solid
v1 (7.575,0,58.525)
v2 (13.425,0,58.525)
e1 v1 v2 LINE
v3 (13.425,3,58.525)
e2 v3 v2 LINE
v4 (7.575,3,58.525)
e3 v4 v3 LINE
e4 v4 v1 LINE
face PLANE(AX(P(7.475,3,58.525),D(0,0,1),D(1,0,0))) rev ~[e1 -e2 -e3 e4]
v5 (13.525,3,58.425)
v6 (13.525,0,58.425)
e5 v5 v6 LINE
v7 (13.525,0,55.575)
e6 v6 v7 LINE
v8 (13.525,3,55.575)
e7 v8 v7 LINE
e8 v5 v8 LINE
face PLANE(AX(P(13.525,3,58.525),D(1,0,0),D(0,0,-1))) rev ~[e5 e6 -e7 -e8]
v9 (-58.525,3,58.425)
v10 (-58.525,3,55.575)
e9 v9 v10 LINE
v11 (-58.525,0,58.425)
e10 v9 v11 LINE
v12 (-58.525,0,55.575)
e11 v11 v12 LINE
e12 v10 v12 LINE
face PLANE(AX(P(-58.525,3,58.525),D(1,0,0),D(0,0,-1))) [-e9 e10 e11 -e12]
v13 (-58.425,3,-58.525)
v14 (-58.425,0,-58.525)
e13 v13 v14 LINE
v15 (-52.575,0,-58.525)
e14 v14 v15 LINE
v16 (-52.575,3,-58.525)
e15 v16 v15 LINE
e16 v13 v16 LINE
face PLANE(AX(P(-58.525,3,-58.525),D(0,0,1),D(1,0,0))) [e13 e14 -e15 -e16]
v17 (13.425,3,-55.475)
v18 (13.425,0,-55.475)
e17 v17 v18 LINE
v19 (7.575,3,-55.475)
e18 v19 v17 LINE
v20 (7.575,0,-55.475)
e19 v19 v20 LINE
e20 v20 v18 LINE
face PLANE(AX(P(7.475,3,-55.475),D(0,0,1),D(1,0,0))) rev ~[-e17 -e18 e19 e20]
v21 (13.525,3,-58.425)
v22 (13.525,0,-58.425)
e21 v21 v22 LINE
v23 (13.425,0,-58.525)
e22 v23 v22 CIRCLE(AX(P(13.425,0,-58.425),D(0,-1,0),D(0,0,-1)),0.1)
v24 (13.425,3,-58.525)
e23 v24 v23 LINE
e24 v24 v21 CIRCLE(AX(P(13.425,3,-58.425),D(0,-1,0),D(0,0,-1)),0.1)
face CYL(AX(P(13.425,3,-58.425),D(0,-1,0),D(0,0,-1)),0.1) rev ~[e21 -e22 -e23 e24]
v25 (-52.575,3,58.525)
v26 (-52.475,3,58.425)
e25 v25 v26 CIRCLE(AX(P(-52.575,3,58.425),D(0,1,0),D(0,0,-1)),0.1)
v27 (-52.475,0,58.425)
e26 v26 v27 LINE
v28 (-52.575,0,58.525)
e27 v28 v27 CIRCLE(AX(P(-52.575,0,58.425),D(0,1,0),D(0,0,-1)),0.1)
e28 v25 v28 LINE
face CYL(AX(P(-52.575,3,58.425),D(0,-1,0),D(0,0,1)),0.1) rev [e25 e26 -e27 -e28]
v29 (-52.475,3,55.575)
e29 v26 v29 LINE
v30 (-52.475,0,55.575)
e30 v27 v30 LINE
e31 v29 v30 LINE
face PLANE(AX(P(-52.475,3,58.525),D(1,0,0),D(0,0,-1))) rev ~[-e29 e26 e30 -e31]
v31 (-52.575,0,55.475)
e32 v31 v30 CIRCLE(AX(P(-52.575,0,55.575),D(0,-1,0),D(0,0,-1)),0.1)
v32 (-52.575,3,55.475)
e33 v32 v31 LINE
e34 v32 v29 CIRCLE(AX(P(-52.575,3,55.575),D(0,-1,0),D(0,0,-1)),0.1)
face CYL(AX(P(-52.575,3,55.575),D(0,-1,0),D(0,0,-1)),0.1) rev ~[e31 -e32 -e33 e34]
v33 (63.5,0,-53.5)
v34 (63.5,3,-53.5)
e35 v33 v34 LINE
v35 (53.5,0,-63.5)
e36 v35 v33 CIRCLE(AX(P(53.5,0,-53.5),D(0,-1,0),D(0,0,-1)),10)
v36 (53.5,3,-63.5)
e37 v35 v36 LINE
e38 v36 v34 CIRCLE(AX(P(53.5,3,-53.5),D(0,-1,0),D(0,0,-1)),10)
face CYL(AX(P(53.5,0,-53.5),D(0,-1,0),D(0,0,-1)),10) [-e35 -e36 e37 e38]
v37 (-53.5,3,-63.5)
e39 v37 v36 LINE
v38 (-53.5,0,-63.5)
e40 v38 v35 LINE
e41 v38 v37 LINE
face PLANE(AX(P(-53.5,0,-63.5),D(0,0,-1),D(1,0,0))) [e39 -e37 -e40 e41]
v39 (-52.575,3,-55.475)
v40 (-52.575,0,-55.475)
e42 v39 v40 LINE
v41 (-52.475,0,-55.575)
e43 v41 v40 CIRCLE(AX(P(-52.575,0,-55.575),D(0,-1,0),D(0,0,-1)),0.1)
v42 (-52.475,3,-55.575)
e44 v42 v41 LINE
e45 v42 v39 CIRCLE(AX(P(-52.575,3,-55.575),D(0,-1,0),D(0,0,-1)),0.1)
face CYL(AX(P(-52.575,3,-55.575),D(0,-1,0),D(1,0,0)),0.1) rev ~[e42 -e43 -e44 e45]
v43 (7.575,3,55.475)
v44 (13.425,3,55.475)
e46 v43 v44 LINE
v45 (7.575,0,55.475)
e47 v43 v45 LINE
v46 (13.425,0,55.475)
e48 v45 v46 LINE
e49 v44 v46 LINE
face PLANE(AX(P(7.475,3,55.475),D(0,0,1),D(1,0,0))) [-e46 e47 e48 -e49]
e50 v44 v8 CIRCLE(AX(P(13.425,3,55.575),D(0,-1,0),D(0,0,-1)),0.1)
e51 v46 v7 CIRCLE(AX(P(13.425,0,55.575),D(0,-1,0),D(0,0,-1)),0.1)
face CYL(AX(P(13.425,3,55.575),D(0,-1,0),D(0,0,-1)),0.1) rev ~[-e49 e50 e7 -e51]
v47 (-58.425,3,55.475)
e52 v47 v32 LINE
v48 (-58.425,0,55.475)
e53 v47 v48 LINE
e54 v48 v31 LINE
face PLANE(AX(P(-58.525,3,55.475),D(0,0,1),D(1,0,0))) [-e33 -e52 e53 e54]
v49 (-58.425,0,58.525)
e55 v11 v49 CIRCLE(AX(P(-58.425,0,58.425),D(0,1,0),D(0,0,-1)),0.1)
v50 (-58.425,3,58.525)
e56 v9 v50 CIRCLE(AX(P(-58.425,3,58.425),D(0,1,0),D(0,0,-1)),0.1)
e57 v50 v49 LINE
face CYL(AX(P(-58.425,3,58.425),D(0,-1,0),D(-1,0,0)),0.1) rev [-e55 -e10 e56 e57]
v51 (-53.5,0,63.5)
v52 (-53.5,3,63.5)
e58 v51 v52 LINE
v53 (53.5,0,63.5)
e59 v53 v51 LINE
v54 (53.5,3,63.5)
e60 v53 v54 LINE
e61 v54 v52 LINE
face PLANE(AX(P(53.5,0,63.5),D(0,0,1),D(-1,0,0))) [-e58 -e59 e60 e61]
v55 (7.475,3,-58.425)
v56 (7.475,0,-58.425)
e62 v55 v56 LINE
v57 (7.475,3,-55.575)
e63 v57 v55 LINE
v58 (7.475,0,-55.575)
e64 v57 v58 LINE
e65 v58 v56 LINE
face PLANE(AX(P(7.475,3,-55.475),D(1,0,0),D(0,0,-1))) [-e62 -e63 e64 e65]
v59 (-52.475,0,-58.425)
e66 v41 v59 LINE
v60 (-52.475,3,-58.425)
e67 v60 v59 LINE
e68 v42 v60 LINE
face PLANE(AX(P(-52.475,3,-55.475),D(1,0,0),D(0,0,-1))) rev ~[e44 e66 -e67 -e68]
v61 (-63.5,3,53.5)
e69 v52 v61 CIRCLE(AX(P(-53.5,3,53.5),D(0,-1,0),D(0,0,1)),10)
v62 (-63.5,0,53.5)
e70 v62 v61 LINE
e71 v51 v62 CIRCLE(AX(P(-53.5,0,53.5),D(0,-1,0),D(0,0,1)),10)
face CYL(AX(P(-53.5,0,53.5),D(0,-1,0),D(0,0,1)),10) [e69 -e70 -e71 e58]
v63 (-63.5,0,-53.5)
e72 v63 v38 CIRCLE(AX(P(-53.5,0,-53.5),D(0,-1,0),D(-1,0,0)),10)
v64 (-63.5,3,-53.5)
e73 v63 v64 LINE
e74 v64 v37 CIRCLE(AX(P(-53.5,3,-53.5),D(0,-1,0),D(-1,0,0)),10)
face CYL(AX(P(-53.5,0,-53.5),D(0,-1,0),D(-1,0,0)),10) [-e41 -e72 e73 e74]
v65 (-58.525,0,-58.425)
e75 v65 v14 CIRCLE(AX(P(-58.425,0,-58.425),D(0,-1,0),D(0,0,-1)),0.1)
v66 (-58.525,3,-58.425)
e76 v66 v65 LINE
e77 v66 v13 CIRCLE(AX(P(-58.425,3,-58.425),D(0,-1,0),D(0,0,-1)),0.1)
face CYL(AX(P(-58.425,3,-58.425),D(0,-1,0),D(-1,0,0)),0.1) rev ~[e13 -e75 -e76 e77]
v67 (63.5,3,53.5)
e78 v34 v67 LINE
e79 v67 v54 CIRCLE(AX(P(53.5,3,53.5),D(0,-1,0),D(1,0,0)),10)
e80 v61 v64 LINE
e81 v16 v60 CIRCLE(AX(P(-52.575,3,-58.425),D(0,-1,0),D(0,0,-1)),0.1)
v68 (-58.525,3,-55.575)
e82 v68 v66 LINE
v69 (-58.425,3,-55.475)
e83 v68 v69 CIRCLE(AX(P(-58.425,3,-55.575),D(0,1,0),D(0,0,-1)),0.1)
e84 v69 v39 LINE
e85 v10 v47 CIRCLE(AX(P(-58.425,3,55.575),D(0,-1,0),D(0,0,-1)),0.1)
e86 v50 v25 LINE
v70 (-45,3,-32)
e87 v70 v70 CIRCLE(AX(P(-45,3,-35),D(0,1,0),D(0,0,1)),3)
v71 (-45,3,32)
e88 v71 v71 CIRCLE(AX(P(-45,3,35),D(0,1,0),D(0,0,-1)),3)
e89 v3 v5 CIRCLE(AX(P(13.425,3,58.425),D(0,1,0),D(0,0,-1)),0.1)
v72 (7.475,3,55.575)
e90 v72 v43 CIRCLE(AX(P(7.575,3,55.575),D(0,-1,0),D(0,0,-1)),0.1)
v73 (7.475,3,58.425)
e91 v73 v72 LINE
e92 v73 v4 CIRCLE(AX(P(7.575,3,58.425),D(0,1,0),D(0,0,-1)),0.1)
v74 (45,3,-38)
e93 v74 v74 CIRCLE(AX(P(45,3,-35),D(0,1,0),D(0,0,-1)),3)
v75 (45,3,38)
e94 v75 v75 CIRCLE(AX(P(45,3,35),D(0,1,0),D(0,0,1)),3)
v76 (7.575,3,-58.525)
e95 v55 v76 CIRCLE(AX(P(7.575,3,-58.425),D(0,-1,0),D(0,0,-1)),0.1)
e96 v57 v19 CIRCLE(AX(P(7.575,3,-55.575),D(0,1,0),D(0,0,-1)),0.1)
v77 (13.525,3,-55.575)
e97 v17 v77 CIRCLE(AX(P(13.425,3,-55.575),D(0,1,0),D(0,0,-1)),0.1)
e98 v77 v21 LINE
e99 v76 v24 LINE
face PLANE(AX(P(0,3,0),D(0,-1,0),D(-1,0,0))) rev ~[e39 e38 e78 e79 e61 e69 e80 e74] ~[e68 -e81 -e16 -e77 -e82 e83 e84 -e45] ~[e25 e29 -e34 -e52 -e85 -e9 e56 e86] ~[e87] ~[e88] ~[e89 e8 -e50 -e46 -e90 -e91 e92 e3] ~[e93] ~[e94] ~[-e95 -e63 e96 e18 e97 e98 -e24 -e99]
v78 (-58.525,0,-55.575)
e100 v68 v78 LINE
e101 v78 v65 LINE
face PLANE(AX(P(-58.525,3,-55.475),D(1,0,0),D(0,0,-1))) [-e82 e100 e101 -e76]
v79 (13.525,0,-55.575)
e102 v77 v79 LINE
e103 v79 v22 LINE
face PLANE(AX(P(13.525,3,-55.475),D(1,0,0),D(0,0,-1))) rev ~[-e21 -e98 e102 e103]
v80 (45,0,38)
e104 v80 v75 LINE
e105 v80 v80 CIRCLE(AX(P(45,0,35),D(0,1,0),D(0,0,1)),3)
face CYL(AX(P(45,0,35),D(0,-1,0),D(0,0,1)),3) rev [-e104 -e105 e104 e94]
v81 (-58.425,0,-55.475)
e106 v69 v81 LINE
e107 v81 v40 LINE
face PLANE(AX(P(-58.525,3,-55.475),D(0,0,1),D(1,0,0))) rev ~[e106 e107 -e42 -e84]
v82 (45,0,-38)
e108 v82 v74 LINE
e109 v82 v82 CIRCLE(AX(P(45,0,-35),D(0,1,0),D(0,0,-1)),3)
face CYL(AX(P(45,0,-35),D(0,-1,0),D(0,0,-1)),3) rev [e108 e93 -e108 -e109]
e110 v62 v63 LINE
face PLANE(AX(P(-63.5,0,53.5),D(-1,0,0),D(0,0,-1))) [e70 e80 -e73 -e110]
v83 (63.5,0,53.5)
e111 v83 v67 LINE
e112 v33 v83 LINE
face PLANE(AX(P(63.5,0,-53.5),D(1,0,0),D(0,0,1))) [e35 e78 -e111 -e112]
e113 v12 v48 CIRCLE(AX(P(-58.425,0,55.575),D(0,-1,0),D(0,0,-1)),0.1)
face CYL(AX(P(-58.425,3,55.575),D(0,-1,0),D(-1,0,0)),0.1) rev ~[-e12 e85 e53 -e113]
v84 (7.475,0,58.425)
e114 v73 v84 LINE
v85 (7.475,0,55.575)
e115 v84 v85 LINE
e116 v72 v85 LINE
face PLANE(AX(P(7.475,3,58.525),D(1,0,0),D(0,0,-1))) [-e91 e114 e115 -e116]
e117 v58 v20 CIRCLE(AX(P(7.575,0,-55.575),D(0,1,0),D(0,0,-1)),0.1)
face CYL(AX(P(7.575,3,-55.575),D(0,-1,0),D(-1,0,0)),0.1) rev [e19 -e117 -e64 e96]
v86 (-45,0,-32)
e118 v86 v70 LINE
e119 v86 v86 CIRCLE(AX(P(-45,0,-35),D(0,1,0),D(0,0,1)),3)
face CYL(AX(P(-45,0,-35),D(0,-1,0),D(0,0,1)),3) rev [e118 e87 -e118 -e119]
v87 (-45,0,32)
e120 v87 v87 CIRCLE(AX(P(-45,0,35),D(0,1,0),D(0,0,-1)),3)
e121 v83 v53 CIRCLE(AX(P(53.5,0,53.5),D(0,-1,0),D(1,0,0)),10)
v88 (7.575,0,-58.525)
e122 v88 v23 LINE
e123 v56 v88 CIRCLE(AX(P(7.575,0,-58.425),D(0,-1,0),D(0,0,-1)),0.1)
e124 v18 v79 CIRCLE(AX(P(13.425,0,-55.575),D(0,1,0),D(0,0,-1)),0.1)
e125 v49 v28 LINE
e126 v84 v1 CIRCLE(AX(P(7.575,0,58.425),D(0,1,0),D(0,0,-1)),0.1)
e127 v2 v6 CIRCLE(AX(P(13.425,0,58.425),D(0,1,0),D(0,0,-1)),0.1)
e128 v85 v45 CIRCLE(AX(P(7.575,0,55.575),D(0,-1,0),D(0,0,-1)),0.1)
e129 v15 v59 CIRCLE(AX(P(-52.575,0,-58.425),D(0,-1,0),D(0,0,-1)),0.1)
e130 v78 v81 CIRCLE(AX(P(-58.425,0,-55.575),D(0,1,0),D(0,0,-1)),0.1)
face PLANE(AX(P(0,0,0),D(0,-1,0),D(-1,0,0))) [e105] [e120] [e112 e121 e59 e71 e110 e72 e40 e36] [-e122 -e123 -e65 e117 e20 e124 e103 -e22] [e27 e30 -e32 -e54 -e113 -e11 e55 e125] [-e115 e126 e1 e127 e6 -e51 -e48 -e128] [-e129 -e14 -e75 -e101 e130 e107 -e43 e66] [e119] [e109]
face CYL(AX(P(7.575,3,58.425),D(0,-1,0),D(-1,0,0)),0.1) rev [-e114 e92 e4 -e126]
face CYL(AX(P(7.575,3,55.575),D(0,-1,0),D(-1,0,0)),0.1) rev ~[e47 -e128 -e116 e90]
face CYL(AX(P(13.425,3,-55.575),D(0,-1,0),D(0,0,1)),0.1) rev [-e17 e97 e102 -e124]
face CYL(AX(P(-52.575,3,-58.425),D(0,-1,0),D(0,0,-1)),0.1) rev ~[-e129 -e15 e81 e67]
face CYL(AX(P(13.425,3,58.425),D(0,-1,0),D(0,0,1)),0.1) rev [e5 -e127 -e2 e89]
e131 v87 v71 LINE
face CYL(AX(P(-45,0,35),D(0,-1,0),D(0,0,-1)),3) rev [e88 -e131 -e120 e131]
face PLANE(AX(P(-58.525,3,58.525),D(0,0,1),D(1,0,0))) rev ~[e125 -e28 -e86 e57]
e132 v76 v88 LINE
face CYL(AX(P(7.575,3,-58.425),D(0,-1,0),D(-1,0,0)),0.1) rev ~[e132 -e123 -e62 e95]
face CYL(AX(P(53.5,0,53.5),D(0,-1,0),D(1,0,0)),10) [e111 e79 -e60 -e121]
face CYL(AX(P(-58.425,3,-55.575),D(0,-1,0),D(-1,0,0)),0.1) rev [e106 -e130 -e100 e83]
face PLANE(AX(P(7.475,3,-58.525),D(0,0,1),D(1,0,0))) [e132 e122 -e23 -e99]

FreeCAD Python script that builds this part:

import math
import FreeCAD as App
import Part
import Sketcher


def edges_at(feature, points):
    """Names of the edges that pass closest to the given points."""
    edges = feature.Shape.Edges
    near = lambda p: min(range(len(edges)), key=lambda i: edges[i].distToShape(Part.Vertex(*p))[0])
    return sorted({f"Edge{near(p) + 1}" for p in points})

doc = App.newDocument("Part")
body = doc.addObject("PartDesign::Body", "Body")

# Sketch on XZ plane
sketch1 = doc.addObject("Sketcher::SketchObject", "Sketch")
body.addObject(sketch1)
sketch1.AttachmentSupport = (doc.XZ_Plane, [""])
sketch1.MapMode = "FlatFace"
sketch1.addGeometry([
    Part.LineSegment(App.Vector(53.5, -63.5, 0), App.Vector(-53.5, -63.5, 0)),  # 0
    Part.ArcOfCircle(Part.Circle(App.Vector(-53.5, -53.5, 0), App.Vector(0, 0, 1), 10), math.radians(180), math.radians(270)),  # 1
    Part.LineSegment(App.Vector(-63.5, -53.5, 0), App.Vector(-63.5, 53.5, 0)),  # 2
    Part.ArcOfCircle(Part.Circle(App.Vector(-53.5, 53.5, 0), App.Vector(0, 0, 1), 10), math.radians(90), math.radians(180)),  # 3
    Part.LineSegment(App.Vector(-53.5, 63.5, 0), App.Vector(53.5, 63.5, 0)),  # 4
    Part.ArcOfCircle(Part.Circle(App.Vector(53.5, 53.5, 0), App.Vector(0, 0, 1), 10), math.radians(0), math.radians(90)),  # 5
    Part.LineSegment(App.Vector(63.5, 53.5, 0), App.Vector(63.5, -53.5, 0)),  # 6
    Part.ArcOfCircle(Part.Circle(App.Vector(53.5, -53.5, 0), App.Vector(0, 0, 1), 10), math.radians(-90), math.radians(0)),  # 7
    Part.Circle(App.Vector(45, 35, 0), App.Vector(0, 0, 1), 3),  # 8
    Part.Circle(App.Vector(-45, 35, 0), App.Vector(0, 0, 1), 3),  # 9
    Part.Circle(App.Vector(45, -35, 0), App.Vector(0, 0, 1), 3),  # 10
    Part.Circle(App.Vector(-45, -35, 0), App.Vector(0, 0, 1), 3),  # 11
], False)
sketch1.addConstraint([
    Sketcher.Constraint("Tangent", 0, 2, 1, 2),
    Sketcher.Constraint("Tangent", 1, 1, 2, 1),
    Sketcher.Constraint("Tangent", 2, 2, 3, 2),
    Sketcher.Constraint("Tangent", 3, 1, 4, 1),
    Sketcher.Constraint("Tangent", 4, 2, 5, 2),
    Sketcher.Constraint("Tangent", 5, 1, 6, 1),
    Sketcher.Constraint("Tangent", 6, 2, 7, 2),
    Sketcher.Constraint("Tangent", 7, 1, 0, 1),
    Sketcher.Constraint("Horizontal", 0),
    Sketcher.Constraint("Vertical", 2),
    Sketcher.Constraint("Horizontal", 4),
    Sketcher.Constraint("Vertical", 6),
    Sketcher.Constraint("Equal", 1, 3),
    Sketcher.Constraint("Equal", 3, 5),
    Sketcher.Constraint("Equal", 5, 7),
    Sketcher.Constraint("Equal", 8, 9),
    Sketcher.Constraint("Equal", 9, 10),
    Sketcher.Constraint("Equal", 10, 11),
    Sketcher.Constraint("Symmetric", 1, 3, 5, 3, -1, 1),
    Sketcher.Constraint("Symmetric", 9, 3, 10, 3, -1, 1),
    Sketcher.Constraint("Symmetric", 8, 3, 11, 3, -1, 1),
    Sketcher.Constraint("Symmetric", 8, 3, 9, 3, -2),
    Sketcher.Constraint("Equal", 4, 2),
    Sketcher.Constraint("Diameter", 8, 6.0),
    Sketcher.Constraint("Radius", 1, 10.0),
    Sketcher.Constraint("DistanceX", 0, 2, 0, 1, 107.0),
    Sketcher.Constraint("DistanceX", -1, 1, 8, 3, 45.0),
    Sketcher.Constraint("DistanceY", -1, 1, 8, 3, 35.0),
])
pad1 = doc.addObject("PartDesign::Pad", "Pad")
body.addObject(pad1)
pad1.Profile = sketch1
pad1.Length = 3
pad1.Reversed = True

# Sketch on XZ plane
sketch2 = doc.addObject("Sketcher::SketchObject", "Sketch001")
body.addObject(sketch2)
sketch2.AttachmentSupport = (doc.XZ_Plane, [""])
sketch2.MapMode = "FlatFace"
sketch2.AttachmentOffset = App.Placement(App.Vector(0, 0, -3), App.Rotation())
sketch2.addGeometry([
    Part.LineSegment(App.Vector(-58.5, 55.5, 0), App.Vector(-58.5, 58.5, 0)),
    Part.LineSegment(App.Vector(-58.5, 58.5, 0), App.Vector(-52.5, 58.5, 0)),
    Part.LineSegment(App.Vector(-52.5, 58.5, 0), App.Vector(-52.5, 55.5, 0)),
    Part.LineSegment(App.Vector(-52.5, 55.5, 0), App.Vector(-58.5, 55.5, 0)),
], False)
sketch2.addConstraint([
    Sketcher.Constraint("Coincident", 0, 2, 1, 1),
    Sketcher.Constraint("Coincident", 1, 2, 2, 1),
    Sketcher.Constraint("Coincident", 2, 2, 3, 1),
    Sketcher.Constraint("Coincident", 3, 2, 0, 1),
    Sketcher.Constraint("Vertical", 0),
    Sketcher.Constraint("Horizontal", 1),
    Sketcher.Constraint("Vertical", 2),
    Sketcher.Constraint("Horizontal", 3),
    Sketcher.Constraint("DistanceX", 1, 1, 1, 2, 6.05),
    Sketcher.Constraint("DistanceY", 0, 1, 0, 2, 3.05),
    Sketcher.Constraint("DistanceX", 0, 2, -1, 1, 58.525),
    Sketcher.Constraint("DistanceY", -1, 1, 0, 2, 58.525),
])
pocket1 = doc.addObject("PartDesign::Pocket", "Pocket")
body.addObject(pocket1)
pocket1.Profile = sketch2
pocket1.Type = "UpToFirst"
pocket1.Reversed = True

# Sketch on XZ plane
sketch3 = doc.addObject("Sketcher::SketchObject", "Sketch002")
body.addObject(sketch3)
sketch3.AttachmentSupport = (doc.XZ_Plane, [""])
sketch3.MapMode = "FlatFace"
sketch3.AttachmentOffset = App.Placement(App.Vector(0, 0, -3), App.Rotation())
sketch3.addGeometry([
    Part.LineSegment(App.Vector(7.5, 55.5, 0), App.Vector(7.5, 58.5, 0)),
    Part.LineSegment(App.Vector(7.5, 58.5, 0), App.Vector(13.5, 58.5, 0)),
    Part.LineSegment(App.Vector(13.5, 58.5, 0), App.Vector(13.5, 55.5, 0)),
    Part.LineSegment(App.Vector(13.5, 55.5, 0), App.Vector(7.5, 55.5, 0)),
], False)
sketch3.addConstraint([
    Sketcher.Constraint("Coincident", 0, 2, 1, 1),
    Sketcher.Constraint("Coincident", 1, 2, 2, 1),
    Sketcher.Constraint("Coincident", 2, 2, 3, 1),
    Sketcher.Constraint("Coincident", 3, 2, 0, 1),
    Sketcher.Constraint("Vertical", 0),
    Sketcher.Constraint("Horizontal", 1),
    Sketcher.Constraint("Vertical", 2),
    Sketcher.Constraint("Horizontal", 3),
    Sketcher.Constraint("DistanceX", 1, 1, 1, 2, 6.05),
    Sketcher.Constraint("DistanceY", 0, 1, 0, 2, 3.05),
    Sketcher.Constraint("DistanceX", -1, 1, 0, 2, 7.475),
    Sketcher.Constraint("DistanceY", -1, 1, 0, 2, 58.525),
])
pocket2 = doc.addObject("PartDesign::Pocket", "Pocket001")
body.addObject(pocket2)
pocket2.Profile = sketch3
pocket2.Type = "UpToFirst"
pocket2.Reversed = True

# Sketch on XZ plane
sketch4 = doc.addObject("Sketcher::SketchObject", "Sketch003")
body.addObject(sketch4)
sketch4.AttachmentSupport = (doc.XZ_Plane, [""])
sketch4.MapMode = "FlatFace"
sketch4.AttachmentOffset = App.Placement(App.Vector(0, 0, -3), App.Rotation())
sketch4.addGeometry([
    Part.LineSegment(App.Vector(7.5, -58.5, 0), App.Vector(7.5, -55.5, 0)),
    Part.LineSegment(App.Vector(7.5, -55.5, 0), App.Vector(13.5, -55.5, 0)),
    Part.LineSegment(App.Vector(13.5, -55.5, 0), App.Vector(13.5, -58.5, 0)),
    Part.LineSegment(App.Vector(13.5, -58.5, 0), App.Vector(7.5, -58.5, 0)),
], False)
sketch4.addConstraint([
    Sketcher.Constraint("Coincident", 0, 2, 1, 1),
    Sketcher.Constraint("Coincident", 1, 2, 2, 1),
    Sketcher.Constraint("Coincident", 2, 2, 3, 1),
    Sketcher.Constraint("Coincident", 3, 2, 0, 1),
    Sketcher.Constraint("Vertical", 0),
    Sketcher.Constraint("Horizontal", 1),
    Sketcher.Constraint("Vertical", 2),
    Sketcher.Constraint("Horizontal", 3),
    Sketcher.Constraint("DistanceX", 1, 1, 1, 2, 6.05),
    Sketcher.Constraint("DistanceY", 0, 1, 0, 2, 3.05),
    Sketcher.Constraint("DistanceX", -1, 1, 0, 2, 7.475),
    Sketcher.Constraint("DistanceY", 0, 2, -1, 1, 55.475),
])
pocket3 = doc.addObject("PartDesign::Pocket", "Pocket002")
body.addObject(pocket3)
pocket3.Profile = sketch4
pocket3.Type = "UpToFirst"
pocket3.Reversed = True

# Sketch on XZ plane
sketch5 = doc.addObject("Sketcher::SketchObject", "Sketch004")
body.addObject(sketch5)
sketch5.AttachmentSupport = (doc.XZ_Plane, [""])
sketch5.MapMode = "FlatFace"
sketch5.AttachmentOffset = App.Placement(App.Vector(0, 0, -3), App.Rotation())
sketch5.addGeometry([
    Part.LineSegment(App.Vector(-58.5, -58.5, 0), App.Vector(-58.5, -55.5, 0)),
    Part.LineSegment(App.Vector(-58.5, -55.5, 0), App.Vector(-52.5, -55.5, 0)),
    Part.LineSegment(App.Vector(-52.5, -55.5, 0), App.Vector(-52.5, -58.5, 0)),
    Part.LineSegment(App.Vector(-52.5, -58.5, 0), App.Vector(-58.5, -58.5, 0)),
], False)
sketch5.addConstraint([
    Sketcher.Constraint("Coincident", 0, 2, 1, 1),
    Sketcher.Constraint("Coincident", 1, 2, 2, 1),
    Sketcher.Constraint("Coincident", 2, 2, 3, 1),
    Sketcher.Constraint("Coincident", 3, 2, 0, 1),
    Sketcher.Constraint("Vertical", 0),
    Sketcher.Constraint("Horizontal", 1),
    Sketcher.Constraint("Vertical", 2),
    Sketcher.Constraint("Horizontal", 3),
    Sketcher.Constraint("DistanceX", 1, 1, 1, 2, 6.05),
    Sketcher.Constraint("DistanceY", 0, 1, 0, 2, 3.05),
    Sketcher.Constraint("DistanceX", 0, 2, -1, 1, 58.525),
    Sketcher.Constraint("DistanceY", 0, 2, -1, 1, 55.475),
])
pocket4 = doc.addObject("PartDesign::Pocket", "Pocket003")
body.addObject(pocket4)
pocket4.Profile = sketch5
pocket4.Type = "UpToFirst"
pocket4.Reversed = True
doc.recompute()

fillet = doc.addObject("PartDesign::Fillet", "Fillet")
body.addObject(fillet)
fillet.Base = (pocket4, edges_at(pocket4, [
    (13.525, 1.5, -58.525),
    (13.525, 1.5, -55.475),
    (7.475, 1.5, -55.475),
    (7.475, 1.5, -58.525),
    (-58.525, 1.5, 58.525),
    (-58.525, 1.5, 55.475),
    (-52.475, 1.5, 55.475),
    (-52.475, 1.5, 58.525),
    (13.525, 1.5, 55.475),
    (13.525, 1.5, 58.525),
    (7.475, 1.5, 58.525),
    (7.475, 1.5, 55.475),
    (-58.525, 1.5, -55.475),
    (-58.525, 1.5, -58.525),
    (-52.475, 1.5, -58.525),
    (-52.475, 1.5, -55.475),
]))
fillet.Radius = 0.1

doc.recompute()
